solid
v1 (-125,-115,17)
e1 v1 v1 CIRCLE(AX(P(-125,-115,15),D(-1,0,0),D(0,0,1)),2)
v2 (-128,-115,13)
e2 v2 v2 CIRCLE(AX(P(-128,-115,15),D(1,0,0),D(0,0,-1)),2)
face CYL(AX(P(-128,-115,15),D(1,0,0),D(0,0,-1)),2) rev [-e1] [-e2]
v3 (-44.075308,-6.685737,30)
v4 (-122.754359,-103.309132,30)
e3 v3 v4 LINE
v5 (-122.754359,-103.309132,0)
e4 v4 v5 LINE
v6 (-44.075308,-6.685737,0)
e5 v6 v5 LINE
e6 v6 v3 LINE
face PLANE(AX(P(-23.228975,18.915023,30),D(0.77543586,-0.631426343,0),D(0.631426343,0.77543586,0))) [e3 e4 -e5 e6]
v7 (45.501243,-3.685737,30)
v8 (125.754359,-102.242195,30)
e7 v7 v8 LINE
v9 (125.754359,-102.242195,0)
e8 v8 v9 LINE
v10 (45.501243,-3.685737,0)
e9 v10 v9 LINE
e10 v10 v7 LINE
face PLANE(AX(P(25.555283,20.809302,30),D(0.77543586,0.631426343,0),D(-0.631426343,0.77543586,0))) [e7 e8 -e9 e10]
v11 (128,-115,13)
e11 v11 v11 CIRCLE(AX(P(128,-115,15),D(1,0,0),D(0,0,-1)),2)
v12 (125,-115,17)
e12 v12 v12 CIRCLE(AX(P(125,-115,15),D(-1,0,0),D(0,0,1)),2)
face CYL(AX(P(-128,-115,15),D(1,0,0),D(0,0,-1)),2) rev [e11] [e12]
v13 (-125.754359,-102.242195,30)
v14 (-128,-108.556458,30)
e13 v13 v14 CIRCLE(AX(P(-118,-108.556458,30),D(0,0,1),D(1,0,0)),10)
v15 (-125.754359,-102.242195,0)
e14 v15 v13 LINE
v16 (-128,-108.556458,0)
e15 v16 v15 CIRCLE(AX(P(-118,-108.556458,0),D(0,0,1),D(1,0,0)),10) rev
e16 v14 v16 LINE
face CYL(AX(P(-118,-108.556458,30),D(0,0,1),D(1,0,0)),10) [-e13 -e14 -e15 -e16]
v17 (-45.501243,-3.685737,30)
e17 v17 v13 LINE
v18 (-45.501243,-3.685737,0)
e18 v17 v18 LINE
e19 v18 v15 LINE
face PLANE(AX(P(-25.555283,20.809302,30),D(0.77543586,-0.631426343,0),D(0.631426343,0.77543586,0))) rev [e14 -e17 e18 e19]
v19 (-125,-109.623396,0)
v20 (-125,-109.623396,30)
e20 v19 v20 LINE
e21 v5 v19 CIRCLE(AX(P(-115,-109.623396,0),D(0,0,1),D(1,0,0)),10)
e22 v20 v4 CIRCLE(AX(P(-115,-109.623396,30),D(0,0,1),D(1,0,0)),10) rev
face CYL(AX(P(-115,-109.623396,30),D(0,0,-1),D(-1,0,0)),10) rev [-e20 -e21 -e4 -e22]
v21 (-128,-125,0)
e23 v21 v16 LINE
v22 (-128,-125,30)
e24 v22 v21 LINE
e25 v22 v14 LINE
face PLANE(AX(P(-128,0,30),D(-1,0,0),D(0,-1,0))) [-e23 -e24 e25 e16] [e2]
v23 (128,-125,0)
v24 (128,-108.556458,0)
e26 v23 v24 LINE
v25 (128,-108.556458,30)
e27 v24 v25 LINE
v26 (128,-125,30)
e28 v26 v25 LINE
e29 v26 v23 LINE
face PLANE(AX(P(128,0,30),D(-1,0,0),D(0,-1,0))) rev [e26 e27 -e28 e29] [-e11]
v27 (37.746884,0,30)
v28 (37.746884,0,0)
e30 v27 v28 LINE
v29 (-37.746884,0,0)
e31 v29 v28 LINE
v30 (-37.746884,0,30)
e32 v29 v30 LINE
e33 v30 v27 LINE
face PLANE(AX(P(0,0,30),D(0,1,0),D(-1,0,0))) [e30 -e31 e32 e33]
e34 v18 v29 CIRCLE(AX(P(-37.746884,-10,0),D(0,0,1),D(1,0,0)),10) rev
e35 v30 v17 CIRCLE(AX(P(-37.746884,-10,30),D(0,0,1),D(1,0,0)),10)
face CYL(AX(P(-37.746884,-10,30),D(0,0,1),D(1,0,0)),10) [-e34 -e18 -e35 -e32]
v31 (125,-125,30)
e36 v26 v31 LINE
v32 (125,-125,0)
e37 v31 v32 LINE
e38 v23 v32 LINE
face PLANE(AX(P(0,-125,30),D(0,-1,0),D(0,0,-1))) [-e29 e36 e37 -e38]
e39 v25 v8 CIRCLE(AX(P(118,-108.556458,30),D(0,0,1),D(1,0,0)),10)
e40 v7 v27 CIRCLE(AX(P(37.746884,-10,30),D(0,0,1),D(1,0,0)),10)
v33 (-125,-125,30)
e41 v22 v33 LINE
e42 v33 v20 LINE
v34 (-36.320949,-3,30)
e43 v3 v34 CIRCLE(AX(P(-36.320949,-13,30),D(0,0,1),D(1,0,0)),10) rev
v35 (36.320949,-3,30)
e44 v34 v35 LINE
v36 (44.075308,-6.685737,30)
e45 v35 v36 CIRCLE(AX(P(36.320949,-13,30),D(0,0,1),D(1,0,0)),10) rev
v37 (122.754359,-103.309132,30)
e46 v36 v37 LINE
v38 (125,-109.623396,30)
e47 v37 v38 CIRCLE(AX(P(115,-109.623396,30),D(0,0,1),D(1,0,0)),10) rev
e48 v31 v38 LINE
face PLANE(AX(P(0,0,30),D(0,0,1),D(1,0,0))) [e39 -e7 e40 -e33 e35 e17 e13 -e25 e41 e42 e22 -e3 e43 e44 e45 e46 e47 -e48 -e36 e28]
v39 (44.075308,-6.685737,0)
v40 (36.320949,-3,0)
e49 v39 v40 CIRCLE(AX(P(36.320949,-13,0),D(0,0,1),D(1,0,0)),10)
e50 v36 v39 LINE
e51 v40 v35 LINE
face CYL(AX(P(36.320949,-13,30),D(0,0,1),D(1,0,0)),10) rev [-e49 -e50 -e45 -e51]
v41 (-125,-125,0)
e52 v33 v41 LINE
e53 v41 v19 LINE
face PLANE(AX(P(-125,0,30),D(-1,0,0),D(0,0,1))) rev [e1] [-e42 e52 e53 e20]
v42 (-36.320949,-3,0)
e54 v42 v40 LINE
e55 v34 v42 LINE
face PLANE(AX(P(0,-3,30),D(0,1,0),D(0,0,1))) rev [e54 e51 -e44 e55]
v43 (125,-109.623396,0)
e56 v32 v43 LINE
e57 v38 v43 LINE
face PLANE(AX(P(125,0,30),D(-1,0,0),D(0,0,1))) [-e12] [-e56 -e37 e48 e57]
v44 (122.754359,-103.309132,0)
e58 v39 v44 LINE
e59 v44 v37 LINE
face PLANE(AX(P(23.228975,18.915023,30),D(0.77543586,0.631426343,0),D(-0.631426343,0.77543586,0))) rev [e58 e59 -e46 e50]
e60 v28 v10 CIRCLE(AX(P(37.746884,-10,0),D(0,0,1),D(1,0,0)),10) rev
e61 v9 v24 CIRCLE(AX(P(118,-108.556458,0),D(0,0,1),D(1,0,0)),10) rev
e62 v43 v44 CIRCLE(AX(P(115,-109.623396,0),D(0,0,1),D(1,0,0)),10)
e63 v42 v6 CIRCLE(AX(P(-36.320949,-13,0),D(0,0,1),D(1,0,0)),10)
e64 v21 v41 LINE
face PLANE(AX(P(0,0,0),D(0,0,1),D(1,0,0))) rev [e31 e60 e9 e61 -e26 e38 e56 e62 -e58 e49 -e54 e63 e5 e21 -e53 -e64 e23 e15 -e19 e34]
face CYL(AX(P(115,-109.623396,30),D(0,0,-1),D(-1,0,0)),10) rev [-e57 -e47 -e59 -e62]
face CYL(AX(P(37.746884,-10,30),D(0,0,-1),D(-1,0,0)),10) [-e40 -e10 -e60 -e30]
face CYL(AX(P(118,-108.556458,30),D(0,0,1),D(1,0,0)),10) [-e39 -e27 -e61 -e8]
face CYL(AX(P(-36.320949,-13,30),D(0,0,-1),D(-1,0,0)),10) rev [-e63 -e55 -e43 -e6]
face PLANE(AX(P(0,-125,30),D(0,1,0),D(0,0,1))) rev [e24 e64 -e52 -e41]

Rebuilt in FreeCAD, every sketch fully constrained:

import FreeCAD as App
import Part
import Sketcher
Q = App.Units.Quantity


def edges_at(feature, points):
    """Names of the edges that pass closest to the given points."""
    edges = feature.Shape.Edges
    near = lambda p: min(range(len(edges)), key=lambda i: edges[i].distToShape(Part.Vertex(*p))[0])
    return sorted({f"Edge{near(p) + 1}" for p in points})

doc = App.newDocument("Part")
body = doc.addObject("PartDesign::Body", "Body")

sketch1 = body.newObject("Sketcher::SketchObject", "Sketch")
sketch1.AttachmentSupport = (doc.getObject("XY_Plane"), [""])
sketch1.MapMode = "FlatFace"
sketch1.addGeometry([
    Part.LineSegment(App.Vector(125, -125, 0), App.Vector(128, -125, 0)),
    Part.LineSegment(App.Vector(128, -125, 0), App.Vector(128, -105, 0)),
    Part.LineSegment(App.Vector(128, -105, 0), App.Vector(42.5, 0, 0)),
    Part.LineSegment(App.Vector(42.5, 0, 0), App.Vector(-42.5, 0, 0)),
    Part.LineSegment(App.Vector(-42.5, 0, 0), App.Vector(-128, -105, 0)),
    Part.LineSegment(App.Vector(-128, -105, 0), App.Vector(-128, -125, 0)),
    Part.LineSegment(App.Vector(-128, -125, 0), App.Vector(-125, -125, 0)),
    Part.LineSegment(App.Vector(-125, -125, 0), App.Vector(-125, -106.1, 0)),
    Part.LineSegment(App.Vector(-125, -106.1, 0), App.Vector(-41.1, -3, 0)),
    Part.LineSegment(App.Vector(-41.1, -3, 0), App.Vector(41.1, -3, 0)),
    Part.LineSegment(App.Vector(41.1, -3, 0), App.Vector(125, -106.1, 0)),
    Part.LineSegment(App.Vector(125, -106.1, 0), App.Vector(125, -125, 0)),
], False)
sketch1.addConstraint([
    Sketcher.Constraint("Coincident", 0, 2, 1, 1),
    Sketcher.Constraint("Coincident", 1, 2, 2, 1),
    Sketcher.Constraint("Coincident", 2, 2, 3, 1),
    Sketcher.Constraint("Coincident", 3, 2, 4, 1),
    Sketcher.Constraint("Coincident", 4, 2, 5, 1),
    Sketcher.Constraint("Coincident", 5, 2, 6, 1),
    Sketcher.Constraint("Coincident", 6, 2, 7, 1),
    Sketcher.Constraint("Coincident", 7, 2, 8, 1),
    Sketcher.Constraint("Coincident", 8, 2, 9, 1),
    Sketcher.Constraint("Coincident", 9, 2, 10, 1),
    Sketcher.Constraint("Coincident", 10, 2, 11, 1),
    Sketcher.Constraint("Coincident", 11, 2, 0, 1),
    Sketcher.Constraint("Horizontal", 0),
    Sketcher.Constraint("Vertical", 1),
    Sketcher.Constraint("Horizontal", 3),
    Sketcher.Constraint("Vertical", 5),
    Sketcher.Constraint("Horizontal", 6),
    Sketcher.Constraint("Vertical", 7),
    Sketcher.Constraint("Horizontal", 9),
    Sketcher.Constraint("Vertical", 11),
    Sketcher.Constraint("Symmetric", 2, 2, 3, 2, -1, 1),
    Sketcher.Constraint("Symmetric", 1, 2, 4, 2, -2),
    Sketcher.Constraint("Symmetric", 7, 2, 10, 2, -2),
    Sketcher.Constraint("Parallel", 4, 8),
    Sketcher.Constraint("Parallel", 2, 10),
    Sketcher.Constraint("Horizontal", 0, 2, 5, 2),
    Sketcher.Constraint("DistanceX", 0, 1, 0, 2, Q("3 mm")),
    Sketcher.Constraint("DistanceX", 3, 2, 3, 1, Q("85 mm")),
    Sketcher.Constraint("DistanceY", 1, 1, 1, 2, Q("20 mm")),
    Sketcher.Constraint("DistanceX", -1, 1, 0, 2, Q("128 mm")),
    Sketcher.Constraint("DistanceY", 0, 2, -1, 1, Q("125 mm")),
    Sketcher.Constraint("DistanceY", 8, 2, -1, 1, Q("3 mm")),
    Sketcher.Constraint("DistanceX", 9, 1, 9, 2, Q("82.14813 mm")),
])
pad1 = body.newObject("PartDesign::Pad", "Pad")
pad1.Profile = sketch1
pad1.Length = 30
doc.recompute()

fillet = body.newObject("PartDesign::Fillet", "Fillet")
fillet.Base = (pad1, edges_at(pad1, [
    (125, -106.067, 15),
    (41.074, -3, 15),
    (-41.074, -3, 15),
    (-125, -106.067, 15),
    (-128, -105, 15),
    (-42.5, 0, 15),
    (42.5, 0, 15),
    (128, -105, 15),
]))
fillet.Radius = 10

sketch2 = body.newObject("Sketcher::SketchObject", "Sketch001")
sketch2.AttachmentSupport = (doc.getObject("YZ_Plane"), [""])
sketch2.MapMode = "FlatFace"
sketch2.AttachmentOffset = App.Placement(App.Vector(0, 0, 128), App.Rotation())
sketch2.addGeometry(Part.Circle(App.Vector(-115, 15, 0), App.Vector(0, 0, 1), 2), False)
sketch2.addConstraint([
    Sketcher.Constraint("Diameter", 0, Q("4 mm")),
    Sketcher.Constraint("DistanceX", 0, 3, -1, 1, Q("115 mm")),
    Sketcher.Constraint("DistanceY", -1, 1, 0, 3, Q("15 mm")),
])
pocket1 = body.newObject("PartDesign::Pocket", "Pocket")
pocket1.Profile = sketch2
pocket1.Type = "ThroughAll"
pocket1.Midplane = True

doc.recompute()
